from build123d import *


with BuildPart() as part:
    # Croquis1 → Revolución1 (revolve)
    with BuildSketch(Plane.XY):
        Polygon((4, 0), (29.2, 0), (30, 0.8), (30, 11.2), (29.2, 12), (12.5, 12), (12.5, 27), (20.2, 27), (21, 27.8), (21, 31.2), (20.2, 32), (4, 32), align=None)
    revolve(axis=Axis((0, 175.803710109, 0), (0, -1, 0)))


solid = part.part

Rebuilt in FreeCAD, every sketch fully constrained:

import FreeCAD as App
import Part
import Sketcher

V = App.Vector
Q = App.Units.Quantity

doc = App.newDocument("Part")
params = doc.addObject("Spreadsheet::Sheet", "Params")
for row, (alias, value) in enumerate([
    ("sketch1_height", "15 mm"),
    ("sketch1_height2", "32 mm"),
    ("sketch1_width", "25.2 mm"),
    ("sketch1_width2", "16.7 mm"),
    ("sketch1_width3", "7.7 mm"),
    ("revolution_angle", "360 deg"),
], start=1):
    params.set(f"A{row}", alias)
    params.set(f"B{row}", "=" + value)
    params.setAlias(f"B{row}", alias)

body = doc.addObject("PartDesign::Body", "Body")

# Sketch on XY plane
sketch1 = body.newObject("Sketcher::SketchObject", "Sketch")
sketch1.AttachmentSupport = (doc.getObject("XY_Plane"), [""])
sketch1.MapMode = "FlatFace"
sketch1.addGeometry([
    Part.LineSegment(V(4, 0, 0), V(29.2, 0, 0)),  # 0
    Part.LineSegment(V(29.2, 0, 0), V(30, 0.8, 0)),  # 1
    Part.LineSegment(V(30, 0.8, 0), V(30, 11.2, 0)),  # 2
    Part.LineSegment(V(30, 11.2, 0), V(29.2, 12, 0)),  # 3
    Part.LineSegment(V(29.2, 12, 0), V(12.5, 12, 0)),  # 4
    Part.LineSegment(V(12.5, 12, 0), V(12.5, 27, 0)),  # 5
    Part.LineSegment(V(12.5, 27, 0), V(20.2, 27, 0)),  # 6
    Part.LineSegment(V(20.2, 27, 0), V(21, 27.8, 0)),  # 7
    Part.LineSegment(V(21, 27.8, 0), V(21, 31.2, 0)),  # 8
    Part.LineSegment(V(21, 31.2, 0), V(20.2, 32, 0)),  # 9
    Part.LineSegment(V(20.2, 32, 0), V(4, 32, 0)),  # 10
    Part.LineSegment(V(4, 32, 0), V(4, 0, 0)),  # 11
], False)
sketch1.addConstraint([
    Sketcher.Constraint("Coincident", 0, 2, 1, 1),
    Sketcher.Constraint("Coincident", 1, 2, 2, 1),
    Sketcher.Constraint("Coincident", 2, 2, 3, 1),
    Sketcher.Constraint("Coincident", 3, 2, 4, 1),
    Sketcher.Constraint("Coincident", 4, 2, 5, 1),
    Sketcher.Constraint("Coincident", 5, 2, 6, 1),
    Sketcher.Constraint("Coincident", 6, 2, 7, 1),
    Sketcher.Constraint("Coincident", 7, 2, 8, 1),
    Sketcher.Constraint("Coincident", 8, 2, 9, 1),
    Sketcher.Constraint("Coincident", 9, 2, 10, 1),
    Sketcher.Constraint("Coincident", 10, 2, 11, 1),
    Sketcher.Constraint("Coincident", 11, 2, 0, 1),
    Sketcher.Constraint("Horizontal", 0),
    Sketcher.Constraint("Vertical", 2),
    Sketcher.Constraint("Horizontal", 4),
    Sketcher.Constraint("Vertical", 5),
    Sketcher.Constraint("Horizontal", 6),
    Sketcher.Constraint("Vertical", 8),
    Sketcher.Constraint("Horizontal", 10),
    Sketcher.Constraint("Vertical", 11),
    Sketcher.Constraint("PointOnObject", 0, 2, -1),
    Sketcher.Constraint("Perpendicular", 1, 3),
    Sketcher.Constraint("Perpendicular", 3, 7),
    Sketcher.Constraint("Perpendicular", 7, 9),
    Sketcher.Constraint("Vertical", 0, 2, 3, 2),
    Sketcher.Constraint("Vertical", 6, 2, 9, 2),
    Sketcher.Constraint("Equal", 1, 3),
    Sketcher.Constraint("Equal", 3, 7),
    Sketcher.Constraint("DistanceY", 5, 1, 5, 2, Q("15 mm")),
    Sketcher.Constraint("DistanceY", 11, 2, 11, 1, Q("32 mm")),
    Sketcher.Constraint("DistanceX", 0, 1, 0, 2, Q("25.2 mm")),
    Sketcher.Constraint("DistanceX", 4, 2, 4, 1, Q("16.7 mm")),
    Sketcher.Constraint("DistanceX", 6, 1, 6, 2, Q("7.7 mm")),
    Sketcher.Constraint("DistanceY", 2, 1, 2, 2, Q("10.4 mm")),
    Sketcher.Constraint("DistanceY", 8, 1, 8, 2, Q("3.4 mm")),
    Sketcher.Constraint("DistanceX", -1, 1, 1, 2, Q("30 mm")),
])
sketch1.setExpression("Constraints[28]", "Params.sketch1_height")
sketch1.setExpression("Constraints[29]", "Params.sketch1_height2")
sketch1.setExpression("Constraints[30]", "Params.sketch1_width")
sketch1.setExpression("Constraints[31]", "Params.sketch1_width2")
sketch1.setExpression("Constraints[32]", "Params.sketch1_width3")
revolution = body.newObject("PartDesign::Revolution", "Revolution")
revolution.Profile = sketch1
revolution.ReferenceAxis = (sketch1, ["V_Axis"])
revolution.setExpression("Angle", "Params.revolution_angle")

doc.recompute()
